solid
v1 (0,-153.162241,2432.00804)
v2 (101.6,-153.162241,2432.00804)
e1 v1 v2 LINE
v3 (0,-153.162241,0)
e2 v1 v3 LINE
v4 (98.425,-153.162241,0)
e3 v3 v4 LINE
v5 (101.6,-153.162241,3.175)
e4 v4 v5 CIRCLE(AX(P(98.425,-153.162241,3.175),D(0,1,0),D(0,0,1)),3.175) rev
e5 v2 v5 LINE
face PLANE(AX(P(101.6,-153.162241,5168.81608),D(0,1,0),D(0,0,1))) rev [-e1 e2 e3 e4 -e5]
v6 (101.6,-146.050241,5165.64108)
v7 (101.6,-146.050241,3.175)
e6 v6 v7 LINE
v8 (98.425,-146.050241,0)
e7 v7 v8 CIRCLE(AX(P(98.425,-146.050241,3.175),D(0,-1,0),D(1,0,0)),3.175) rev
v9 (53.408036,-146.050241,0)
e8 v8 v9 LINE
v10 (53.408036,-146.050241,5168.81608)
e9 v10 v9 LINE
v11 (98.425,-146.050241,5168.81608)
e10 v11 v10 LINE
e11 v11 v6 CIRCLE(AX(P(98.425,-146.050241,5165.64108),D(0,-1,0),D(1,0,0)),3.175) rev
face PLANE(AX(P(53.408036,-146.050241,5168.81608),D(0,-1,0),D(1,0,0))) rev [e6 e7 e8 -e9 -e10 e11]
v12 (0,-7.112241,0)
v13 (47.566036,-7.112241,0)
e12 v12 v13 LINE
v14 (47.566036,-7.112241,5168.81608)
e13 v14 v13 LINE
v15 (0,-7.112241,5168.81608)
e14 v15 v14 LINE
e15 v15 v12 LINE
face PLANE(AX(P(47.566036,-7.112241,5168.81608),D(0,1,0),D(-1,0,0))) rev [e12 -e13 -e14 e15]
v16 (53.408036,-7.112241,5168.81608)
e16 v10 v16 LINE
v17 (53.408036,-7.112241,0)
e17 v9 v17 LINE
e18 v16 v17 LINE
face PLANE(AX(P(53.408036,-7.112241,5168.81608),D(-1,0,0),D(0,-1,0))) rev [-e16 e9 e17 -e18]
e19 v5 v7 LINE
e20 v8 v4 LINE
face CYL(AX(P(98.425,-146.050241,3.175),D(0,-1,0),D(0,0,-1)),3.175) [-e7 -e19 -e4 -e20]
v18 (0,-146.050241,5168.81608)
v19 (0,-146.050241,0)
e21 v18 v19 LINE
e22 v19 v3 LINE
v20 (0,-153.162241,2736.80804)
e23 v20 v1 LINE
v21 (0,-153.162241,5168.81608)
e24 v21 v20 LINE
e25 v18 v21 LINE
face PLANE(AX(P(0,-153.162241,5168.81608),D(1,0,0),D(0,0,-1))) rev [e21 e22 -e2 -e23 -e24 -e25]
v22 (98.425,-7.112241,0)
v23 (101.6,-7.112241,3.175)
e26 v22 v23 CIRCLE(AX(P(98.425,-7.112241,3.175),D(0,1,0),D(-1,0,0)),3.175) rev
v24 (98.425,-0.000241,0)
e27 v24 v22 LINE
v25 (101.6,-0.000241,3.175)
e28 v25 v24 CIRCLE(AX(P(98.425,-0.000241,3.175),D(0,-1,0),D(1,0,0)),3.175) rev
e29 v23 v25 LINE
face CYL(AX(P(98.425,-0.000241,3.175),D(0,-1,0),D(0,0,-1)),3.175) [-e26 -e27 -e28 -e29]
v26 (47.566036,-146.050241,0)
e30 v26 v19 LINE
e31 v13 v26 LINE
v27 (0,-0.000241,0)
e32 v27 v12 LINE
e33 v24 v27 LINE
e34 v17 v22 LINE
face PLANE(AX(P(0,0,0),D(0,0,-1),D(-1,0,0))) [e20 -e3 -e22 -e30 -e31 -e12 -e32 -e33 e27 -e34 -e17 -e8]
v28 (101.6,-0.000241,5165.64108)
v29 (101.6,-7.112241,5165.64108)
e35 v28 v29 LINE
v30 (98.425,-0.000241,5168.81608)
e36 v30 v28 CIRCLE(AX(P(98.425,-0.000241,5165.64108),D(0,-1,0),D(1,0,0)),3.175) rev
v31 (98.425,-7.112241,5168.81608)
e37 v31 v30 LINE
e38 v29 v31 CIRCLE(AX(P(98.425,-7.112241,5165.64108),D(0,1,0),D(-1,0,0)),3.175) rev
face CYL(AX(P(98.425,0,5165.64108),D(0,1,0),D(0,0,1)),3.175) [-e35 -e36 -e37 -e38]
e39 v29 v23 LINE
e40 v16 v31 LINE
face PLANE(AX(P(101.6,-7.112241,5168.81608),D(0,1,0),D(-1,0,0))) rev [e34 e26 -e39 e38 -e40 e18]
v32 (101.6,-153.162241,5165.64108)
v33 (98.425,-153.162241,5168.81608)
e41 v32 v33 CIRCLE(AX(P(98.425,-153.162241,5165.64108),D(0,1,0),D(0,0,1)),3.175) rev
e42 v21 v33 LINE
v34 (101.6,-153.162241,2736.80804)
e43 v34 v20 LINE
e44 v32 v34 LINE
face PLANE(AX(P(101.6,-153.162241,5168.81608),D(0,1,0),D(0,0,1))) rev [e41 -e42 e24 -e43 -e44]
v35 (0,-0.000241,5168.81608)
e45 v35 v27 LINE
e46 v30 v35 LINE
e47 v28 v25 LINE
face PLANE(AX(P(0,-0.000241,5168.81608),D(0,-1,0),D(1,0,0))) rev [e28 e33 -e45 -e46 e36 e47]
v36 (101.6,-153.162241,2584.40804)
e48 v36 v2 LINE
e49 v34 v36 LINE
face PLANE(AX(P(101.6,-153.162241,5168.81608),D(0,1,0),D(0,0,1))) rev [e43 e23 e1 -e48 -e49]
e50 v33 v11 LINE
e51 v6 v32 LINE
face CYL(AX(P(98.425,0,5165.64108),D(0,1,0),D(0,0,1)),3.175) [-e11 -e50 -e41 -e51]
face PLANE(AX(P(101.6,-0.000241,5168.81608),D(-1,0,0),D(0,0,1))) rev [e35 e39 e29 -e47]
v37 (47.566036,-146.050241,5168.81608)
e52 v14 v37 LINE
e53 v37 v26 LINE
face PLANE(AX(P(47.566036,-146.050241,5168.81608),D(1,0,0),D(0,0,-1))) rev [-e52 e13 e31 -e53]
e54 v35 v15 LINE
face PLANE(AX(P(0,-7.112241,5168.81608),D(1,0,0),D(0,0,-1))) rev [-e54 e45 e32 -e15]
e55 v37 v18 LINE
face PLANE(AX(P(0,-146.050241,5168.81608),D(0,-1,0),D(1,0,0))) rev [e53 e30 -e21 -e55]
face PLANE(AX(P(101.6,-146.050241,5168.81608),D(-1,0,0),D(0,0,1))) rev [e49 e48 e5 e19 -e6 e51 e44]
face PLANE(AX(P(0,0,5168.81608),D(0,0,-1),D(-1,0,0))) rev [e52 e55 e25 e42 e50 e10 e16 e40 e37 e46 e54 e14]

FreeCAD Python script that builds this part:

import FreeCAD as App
import Part
import Sketcher

V = App.Vector
Q = App.Units.Quantity


def edges_at(feature, points):
    """Names of the edges that pass closest to the given points."""
    edges = feature.Shape.Edges
    near = lambda p: min(range(len(edges)), key=lambda i: edges[i].distToShape(Part.Vertex(*p))[0])
    return sorted({f"Edge{near(p) + 1}" for p in points})

doc = App.newDocument("Part")
body = doc.addObject("PartDesign::Body", "Body")

# Sketch on XY plane
sketch1 = doc.addObject("Sketcher::SketchObject", "Sketch")
body.addObject(sketch1)
sketch1.AttachmentSupport = (doc.XY_Plane, [""])
sketch1.MapMode = "FlatFace"
sketch1.addGeometry([
    Part.LineSegment(V(102, 0, 0), V(0, 0, 0)),  # 0
    Part.LineSegment(V(0, 0, 0), V(0, -7, 0)),  # 1
    Part.LineSegment(V(0, -7, 0), V(48, -7, 0)),  # 2
    Part.LineSegment(V(48, -7, 0), V(48, -146, 0)),  # 3
    Part.LineSegment(V(48, -146, 0), V(0, -146, 0)),  # 4
    Part.LineSegment(V(0, -146, 0), V(0, -153, 0)),  # 5
    Part.LineSegment(V(0, -153, 0), V(102, -153, 0)),  # 6
    Part.LineSegment(V(102, -153, 0), V(102, -146, 0)),  # 7
    Part.LineSegment(V(102, -146, 0), V(53, -146, 0)),  # 8
    Part.LineSegment(V(53, -146, 0), V(53, -7, 0)),  # 9
    Part.LineSegment(V(53, -7, 0), V(102, -7, 0)),  # 10
    Part.LineSegment(V(102, -7, 0), V(102, 0, 0)),  # 11
], False)
sketch1.addConstraint([
    Sketcher.Constraint("Coincident", 0, 2, 1, 1),
    Sketcher.Constraint("Coincident", 1, 2, 2, 1),
    Sketcher.Constraint("Coincident", 2, 2, 3, 1),
    Sketcher.Constraint("Coincident", 3, 2, 4, 1),
    Sketcher.Constraint("Coincident", 4, 2, 5, 1),
    Sketcher.Constraint("Coincident", 5, 2, 6, 1),
    Sketcher.Constraint("Coincident", 6, 2, 7, 1),
    Sketcher.Constraint("Coincident", 7, 2, 8, 1),
    Sketcher.Constraint("Coincident", 8, 2, 9, 1),
    Sketcher.Constraint("Coincident", 9, 2, 10, 1),
    Sketcher.Constraint("Coincident", 10, 2, 11, 1),
    Sketcher.Constraint("Coincident", 11, 2, 0, 1),
    Sketcher.Constraint("Horizontal", 0),
    Sketcher.Constraint("Vertical", 1),
    Sketcher.Constraint("Horizontal", 2),
    Sketcher.Constraint("Vertical", 3),
    Sketcher.Constraint("Horizontal", 4),
    Sketcher.Constraint("Vertical", 5),
    Sketcher.Constraint("Horizontal", 6),
    Sketcher.Constraint("Vertical", 7),
    Sketcher.Constraint("Horizontal", 8),
    Sketcher.Constraint("Vertical", 9),
    Sketcher.Constraint("Horizontal", 10),
    Sketcher.Constraint("Vertical", 11),
    Sketcher.Constraint("PointOnObject", 0, 2, -2),
    Sketcher.Constraint("PointOnObject", 4, 2, -2),
    Sketcher.Constraint("Horizontal", 4, 2, 7, 2),
    Sketcher.Constraint("Horizontal", 2, 2, 9, 2),
    Sketcher.Constraint("Vertical", 7, 2, 10, 2),
    Sketcher.Constraint("Equal", 1, 5),
    Sketcher.Constraint("DistanceX", 0, 2, 0, 1, Q("4 in")),
    Sketcher.Constraint("DistanceY", 1, 2, 1, 1, Q("0.28 in")),
    Sketcher.Constraint("DistanceY", 3, 2, 3, 1, Q("5.47 in")),
    Sketcher.Constraint("DistanceX", 3, 2, 8, 2, Q("0.23 in")),
    Sketcher.Constraint("DistanceX", 2, 1, 2, 2, Q("47.566036 mm")),
    Sketcher.Constraint("DistanceY", 0, 2, -1, 1, Q("0.000241 mm")),
])
pad1 = doc.addObject("PartDesign::Pad", "Pad")
body.addObject(pad1)
pad1.Profile = sketch1
pad1.Length = 5168.81608
doc.recompute()

fillet = doc.addObject("PartDesign::Fillet", "Fillet")
body.addObject(fillet)
fillet.Base = (pad1, edges_at(pad1, [
    (101.6, -3.556, 0),
    (101.6, -149.606, 0),
    (101.6, -149.606, 5168.816),
    (101.6, -3.556, 5168.816),
]))
fillet.Radius = Q("0.125 in")

doc.recompute()
